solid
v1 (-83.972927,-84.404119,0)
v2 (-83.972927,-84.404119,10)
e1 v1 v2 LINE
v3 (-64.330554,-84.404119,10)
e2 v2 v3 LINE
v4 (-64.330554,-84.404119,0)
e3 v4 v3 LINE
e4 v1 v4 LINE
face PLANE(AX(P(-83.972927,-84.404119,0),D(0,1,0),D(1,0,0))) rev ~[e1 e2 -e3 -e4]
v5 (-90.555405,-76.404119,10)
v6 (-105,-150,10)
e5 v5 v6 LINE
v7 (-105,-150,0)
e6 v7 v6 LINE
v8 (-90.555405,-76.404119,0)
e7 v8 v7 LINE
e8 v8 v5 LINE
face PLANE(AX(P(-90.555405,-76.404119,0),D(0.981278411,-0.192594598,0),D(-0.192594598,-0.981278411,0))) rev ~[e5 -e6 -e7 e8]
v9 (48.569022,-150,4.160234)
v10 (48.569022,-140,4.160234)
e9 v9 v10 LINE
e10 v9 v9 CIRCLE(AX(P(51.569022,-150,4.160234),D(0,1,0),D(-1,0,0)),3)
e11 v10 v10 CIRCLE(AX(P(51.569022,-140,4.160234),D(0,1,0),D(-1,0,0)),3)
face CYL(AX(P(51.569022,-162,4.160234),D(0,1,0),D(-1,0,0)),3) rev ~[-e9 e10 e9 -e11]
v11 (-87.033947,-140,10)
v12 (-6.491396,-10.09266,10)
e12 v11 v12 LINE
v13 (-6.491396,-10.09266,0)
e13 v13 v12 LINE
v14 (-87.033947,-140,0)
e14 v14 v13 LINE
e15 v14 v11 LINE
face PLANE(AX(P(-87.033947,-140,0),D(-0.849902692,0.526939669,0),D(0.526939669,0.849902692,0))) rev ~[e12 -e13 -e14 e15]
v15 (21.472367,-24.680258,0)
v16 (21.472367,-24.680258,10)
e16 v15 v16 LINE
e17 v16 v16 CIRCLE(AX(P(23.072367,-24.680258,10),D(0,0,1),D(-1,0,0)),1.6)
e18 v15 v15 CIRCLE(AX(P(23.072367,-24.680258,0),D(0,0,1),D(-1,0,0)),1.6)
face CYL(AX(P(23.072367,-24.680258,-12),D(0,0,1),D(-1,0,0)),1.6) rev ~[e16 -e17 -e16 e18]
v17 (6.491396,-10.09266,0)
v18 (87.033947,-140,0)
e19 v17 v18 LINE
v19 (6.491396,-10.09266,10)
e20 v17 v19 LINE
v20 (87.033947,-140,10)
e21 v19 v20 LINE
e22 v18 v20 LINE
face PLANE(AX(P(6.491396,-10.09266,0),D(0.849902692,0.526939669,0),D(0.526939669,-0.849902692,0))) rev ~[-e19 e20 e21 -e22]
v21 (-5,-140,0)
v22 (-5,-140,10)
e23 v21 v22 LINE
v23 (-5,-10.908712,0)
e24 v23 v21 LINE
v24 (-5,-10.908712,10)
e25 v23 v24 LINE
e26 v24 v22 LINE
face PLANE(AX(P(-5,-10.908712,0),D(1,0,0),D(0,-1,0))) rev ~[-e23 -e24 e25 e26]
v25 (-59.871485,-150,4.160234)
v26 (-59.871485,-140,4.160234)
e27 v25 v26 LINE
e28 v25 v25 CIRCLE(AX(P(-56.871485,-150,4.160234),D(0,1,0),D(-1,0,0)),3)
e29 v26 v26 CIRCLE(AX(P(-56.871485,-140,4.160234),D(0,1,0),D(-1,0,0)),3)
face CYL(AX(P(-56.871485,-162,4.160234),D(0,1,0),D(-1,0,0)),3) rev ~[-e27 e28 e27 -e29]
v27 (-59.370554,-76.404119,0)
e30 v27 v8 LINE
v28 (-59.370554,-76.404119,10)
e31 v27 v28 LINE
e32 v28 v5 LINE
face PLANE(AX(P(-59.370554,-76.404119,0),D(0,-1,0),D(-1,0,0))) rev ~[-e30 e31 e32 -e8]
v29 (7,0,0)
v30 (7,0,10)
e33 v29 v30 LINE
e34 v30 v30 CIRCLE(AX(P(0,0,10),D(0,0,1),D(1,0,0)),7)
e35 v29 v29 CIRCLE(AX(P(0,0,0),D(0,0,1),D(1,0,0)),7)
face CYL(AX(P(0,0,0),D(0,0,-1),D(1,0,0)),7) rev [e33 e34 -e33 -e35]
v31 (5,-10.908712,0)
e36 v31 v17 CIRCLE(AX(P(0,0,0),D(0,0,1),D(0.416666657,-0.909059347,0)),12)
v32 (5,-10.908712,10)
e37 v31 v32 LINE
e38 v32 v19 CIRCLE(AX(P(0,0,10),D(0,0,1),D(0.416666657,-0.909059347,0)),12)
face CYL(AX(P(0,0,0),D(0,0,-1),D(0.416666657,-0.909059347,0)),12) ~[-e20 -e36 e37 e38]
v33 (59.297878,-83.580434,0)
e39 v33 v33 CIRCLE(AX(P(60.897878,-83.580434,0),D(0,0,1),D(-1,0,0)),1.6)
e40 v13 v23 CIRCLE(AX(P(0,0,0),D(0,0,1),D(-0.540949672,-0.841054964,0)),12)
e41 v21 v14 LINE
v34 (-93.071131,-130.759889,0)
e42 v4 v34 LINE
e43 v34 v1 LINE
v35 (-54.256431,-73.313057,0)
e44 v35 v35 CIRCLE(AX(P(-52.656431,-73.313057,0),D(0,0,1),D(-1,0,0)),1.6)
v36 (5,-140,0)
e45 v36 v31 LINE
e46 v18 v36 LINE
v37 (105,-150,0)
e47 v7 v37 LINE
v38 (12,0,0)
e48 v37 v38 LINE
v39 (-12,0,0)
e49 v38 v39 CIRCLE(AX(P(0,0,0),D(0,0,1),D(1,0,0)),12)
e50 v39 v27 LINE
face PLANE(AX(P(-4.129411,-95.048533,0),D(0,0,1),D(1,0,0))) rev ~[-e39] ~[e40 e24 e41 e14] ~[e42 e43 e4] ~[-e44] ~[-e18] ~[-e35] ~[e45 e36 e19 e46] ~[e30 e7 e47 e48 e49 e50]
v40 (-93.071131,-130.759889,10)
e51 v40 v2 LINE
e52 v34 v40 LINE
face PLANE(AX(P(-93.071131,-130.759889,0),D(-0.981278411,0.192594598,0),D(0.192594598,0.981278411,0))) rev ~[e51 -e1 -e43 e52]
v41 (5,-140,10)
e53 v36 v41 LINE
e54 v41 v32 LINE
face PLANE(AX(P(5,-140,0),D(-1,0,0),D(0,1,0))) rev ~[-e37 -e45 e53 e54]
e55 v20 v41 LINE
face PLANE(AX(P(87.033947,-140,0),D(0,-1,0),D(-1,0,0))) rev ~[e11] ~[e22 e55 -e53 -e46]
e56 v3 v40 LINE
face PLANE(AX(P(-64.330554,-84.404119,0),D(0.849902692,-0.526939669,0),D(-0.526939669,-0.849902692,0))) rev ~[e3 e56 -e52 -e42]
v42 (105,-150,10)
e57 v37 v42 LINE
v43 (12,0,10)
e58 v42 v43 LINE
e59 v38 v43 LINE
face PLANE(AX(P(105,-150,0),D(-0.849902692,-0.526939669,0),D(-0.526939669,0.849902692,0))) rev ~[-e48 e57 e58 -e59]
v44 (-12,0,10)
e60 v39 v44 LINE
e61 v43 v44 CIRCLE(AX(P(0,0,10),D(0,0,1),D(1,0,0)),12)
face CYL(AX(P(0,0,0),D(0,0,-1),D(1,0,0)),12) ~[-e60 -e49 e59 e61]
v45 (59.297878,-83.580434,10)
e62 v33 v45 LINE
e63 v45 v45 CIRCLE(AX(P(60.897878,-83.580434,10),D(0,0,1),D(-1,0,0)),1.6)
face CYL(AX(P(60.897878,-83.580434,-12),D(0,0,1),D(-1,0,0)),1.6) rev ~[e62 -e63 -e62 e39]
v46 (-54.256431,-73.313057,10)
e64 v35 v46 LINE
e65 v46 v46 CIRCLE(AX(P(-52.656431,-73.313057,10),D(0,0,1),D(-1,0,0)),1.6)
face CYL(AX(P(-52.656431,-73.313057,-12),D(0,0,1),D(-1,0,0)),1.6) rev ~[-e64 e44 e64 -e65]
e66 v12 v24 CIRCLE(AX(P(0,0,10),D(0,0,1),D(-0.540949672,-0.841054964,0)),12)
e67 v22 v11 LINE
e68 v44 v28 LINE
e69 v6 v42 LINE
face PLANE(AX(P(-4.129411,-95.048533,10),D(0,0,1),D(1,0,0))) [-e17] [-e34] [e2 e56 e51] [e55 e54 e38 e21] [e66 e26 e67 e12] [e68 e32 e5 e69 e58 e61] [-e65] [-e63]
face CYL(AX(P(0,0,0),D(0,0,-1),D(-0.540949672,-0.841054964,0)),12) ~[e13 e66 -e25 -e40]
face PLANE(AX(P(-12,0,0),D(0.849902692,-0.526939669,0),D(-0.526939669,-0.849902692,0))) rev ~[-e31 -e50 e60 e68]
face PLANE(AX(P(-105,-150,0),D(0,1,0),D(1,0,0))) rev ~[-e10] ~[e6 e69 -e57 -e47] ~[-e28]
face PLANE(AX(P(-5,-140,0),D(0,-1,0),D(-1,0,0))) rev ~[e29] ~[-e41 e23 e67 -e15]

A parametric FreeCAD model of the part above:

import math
import FreeCAD as App
import Part
import Sketcher

V = App.Vector
Q = App.Units.Quantity


def add_polygon(sketch, points):
    """Adds a closed chain of lines whose ends are joined by coincident constraints."""
    first, n = sketch.GeometryCount, len(points)
    for a, b in zip(points, points[1:] + points[:1]):
        sketch.addGeometry(Part.LineSegment(App.Vector(*a, 0), App.Vector(*b, 0)), False)
    for i in range(n):
        sketch.addConstraint(Sketcher.Constraint("Coincident", first + i, 2, first + (i + 1) % n, 1))

doc = App.newDocument("Part")
body = doc.addObject("PartDesign::Body", "Body")

# Sketch on XY plane
sketch1 = body.newObject("Sketcher::SketchObject", "Sketch")
sketch1.AttachmentSupport = (doc.getObject("XY_Plane"), [""])
sketch1.MapMode = "FlatFace"
sketch1.addGeometry(Part.ArcOfCircle(Part.Circle(V(0, 0, 0), V(0, 0, 1), 12), math.radians(0), math.radians(180)), False)  # 0
sketch1.addGeometry(Part.LineSegment(V(-12, 0, 0), V(-59.370554, -76.404119, 0)), False)  # 1
sketch1.addGeometry(Part.LineSegment(V(-59.370554, -76.404119, 0), V(-90.555405, -76.404119, 0)), False)  # 2
sketch1.addGeometry(Part.LineSegment(V(-90.555405, -76.404119, 0), V(-105, -150, 0)), False)  # 3
sketch1.addGeometry(Part.LineSegment(V(-105, -150, 0), V(105, -150, 0)), False)  # 4
sketch1.addGeometry(Part.LineSegment(V(105, -150, 0), V(12, 0, 0)), False)  # 5
add_polygon(sketch1, [(-64.330554, -84.404119), (-93.071131, -130.759889), (-83.972927, -84.404119)])  # lines 6-8
sketch1.addGeometry(Part.LineSegment(V(-5, -140, 0), V(-87.033947, -140, 0)), False)  # 9
sketch1.addGeometry(Part.LineSegment(V(-87.033947, -140, 0), V(-6.491396, -10.09266, 0)), False)  # 10
sketch1.addGeometry(Part.ArcOfCircle(Part.Circle(V(0, 0, 0), V(0, 0, 1), 12), math.radians(-122.748311), math.radians(-114.624318)), False)  # 11
sketch1.addGeometry(Part.LineSegment(V(-5, -10.908712, 0), V(-5, -140, 0)), False)  # 12
sketch1.addGeometry(Part.LineSegment(V(5, -140, 0), V(5, -10.908712, 0)), False)  # 13
sketch1.addGeometry(Part.ArcOfCircle(Part.Circle(V(0, 0, 0), V(0, 0, 1), 12), math.radians(-65.375682), math.radians(-57.251689)), False)  # 14
sketch1.addGeometry(Part.LineSegment(V(6.491396, -10.09266, 0), V(87.033947, -140, 0)), False)  # 15
sketch1.addGeometry(Part.LineSegment(V(87.033947, -140, 0), V(5, -140, 0)), False)  # 16
sketch1.addGeometry(Part.Circle(V(0, 0, 0), V(0, 0, 1), 7), False)  # 17
sketch1.addConstraint(Sketcher.Constraint("Coincident", 0, 2, 1, 1))
sketch1.addConstraint(Sketcher.Constraint("Coincident", 1, 2, 2, 1))
sketch1.addConstraint(Sketcher.Constraint("Coincident", 2, 2, 3, 1))
sketch1.addConstraint(Sketcher.Constraint("Coincident", 3, 2, 4, 1))
sketch1.addConstraint(Sketcher.Constraint("Coincident", 4, 2, 5, 1))
sketch1.addConstraint(Sketcher.Constraint("Coincident", 5, 2, 0, 1))
sketch1.addConstraint(Sketcher.Constraint("Coincident", 9, 2, 10, 1))
sketch1.addConstraint(Sketcher.Constraint("Coincident", 10, 2, 11, 1))
sketch1.addConstraint(Sketcher.Constraint("Coincident", 11, 2, 12, 1))
sketch1.addConstraint(Sketcher.Constraint("Coincident", 12, 2, 9, 1))
sketch1.addConstraint(Sketcher.Constraint("Coincident", 13, 2, 14, 1))
sketch1.addConstraint(Sketcher.Constraint("Coincident", 14, 2, 15, 1))
sketch1.addConstraint(Sketcher.Constraint("Coincident", 15, 2, 16, 1))
sketch1.addConstraint(Sketcher.Constraint("Coincident", 16, 2, 13, 1))
sketch1.addConstraint(Sketcher.Constraint("Horizontal", 2))
sketch1.addConstraint(Sketcher.Constraint("Horizontal", 4))
sketch1.addConstraint(Sketcher.Constraint("Horizontal", 8))
sketch1.addConstraint(Sketcher.Constraint("Horizontal", 9))
sketch1.addConstraint(Sketcher.Constraint("Vertical", 12))
sketch1.addConstraint(Sketcher.Constraint("Vertical", 13))
sketch1.addConstraint(Sketcher.Constraint("Horizontal", 16))
sketch1.addConstraint(Sketcher.Constraint("Coincident", 0, 3, -1, 1))
sketch1.addConstraint(Sketcher.Constraint("Coincident", 11, 3, -1, 1))
sketch1.addConstraint(Sketcher.Constraint("Coincident", 14, 3, -1, 1))
sketch1.addConstraint(Sketcher.Constraint("Coincident", 17, 3, -1, 1))
sketch1.addConstraint(Sketcher.Constraint("Equal", 0, 11))
sketch1.addConstraint(Sketcher.Constraint("Equal", 11, 14))
sketch1.addConstraint(Sketcher.Constraint("Symmetric", 9, 2, 15, 2, -2))
sketch1.addConstraint(Sketcher.Constraint("PointOnObject", 0, 2, -1))
sketch1.addConstraint(Sketcher.Constraint("PointOnObject", 5, 2, -1))
sketch1.addConstraint(Sketcher.Constraint("Parallel", 1, 6))
sketch1.addConstraint(Sketcher.Constraint("Parallel", 3, 7))
sketch1.addConstraint(Sketcher.Constraint("Parallel", 6, 10))
sketch1.addConstraint(Sketcher.Constraint("Parallel", 5, 15))
sketch1.addConstraint(Sketcher.Constraint("Horizontal", 11, 2, 13, 2))
sketch1.addConstraint(Sketcher.Constraint("Horizontal", 10, 2, 14, 2))
sketch1.addConstraint(Sketcher.Constraint("Diameter", 17, Q("14 mm")))
sketch1.addConstraint(Sketcher.Constraint("Radius", 0, Q("12 mm")))
sketch1.addConstraint(Sketcher.Constraint("DistanceX", 4, 1, 4, 2, Q("210 mm")))
sketch1.addConstraint(Sketcher.Constraint("Distance", 3, Q("75 mm")))
sketch1.addConstraint(Sketcher.Constraint("DistanceX", 3, 2, -1, 1, Q("105 mm")))
sketch1.addConstraint(Sketcher.Constraint("DistanceY", 3, 2, -1, 1, Q("150 mm")))
sketch1.addConstraint(Sketcher.Constraint("DistanceY", 9, 2, -1, 1, Q("140 mm")))
sketch1.addConstraint(Sketcher.Constraint("DistanceX", 11, 2, -1, 1, Q("5 mm")))
sketch1.addConstraint(Sketcher.Constraint("DistanceY", 7, 2, 2, 2, Q("8 mm")))
sketch1.addConstraint(Sketcher.Constraint("DistanceX", 8, 2, 1, 2, Q("4.96 mm")))
sketch1.addConstraint(Sketcher.Constraint("DistanceX", 2, 2, 2, 1, Q("31.184851 mm")))
sketch1.addConstraint(Sketcher.Constraint("Distance", 7, Q("47.240181 mm")))
sketch1.addConstraint(Sketcher.Constraint("DistanceX", 9, 2, 9, 1, Q("82.033947 mm")))
pad1 = body.newObject("PartDesign::Pad", "Pad")
pad1.Profile = sketch1
pad1.Length = 10

# Sketch on XZ plane
sketch2 = body.newObject("Sketcher::SketchObject", "Sketch001")
sketch2.AttachmentSupport = (doc.getObject("XZ_Plane"), [""])
sketch2.MapMode = "FlatFace"
sketch2.AttachmentOffset = App.Placement(V(0, 0, 150), App.Rotation())
sketch2.addGeometry(Part.Circle(V(-56.871485, 4.160234, 0), V(0, 0, 1), 3), False)
sketch2.addGeometry(Part.Circle(V(51.569022, 4.160234, 0), V(0, 0, 1), 3), False)
sketch2.addConstraint(Sketcher.Constraint("Equal", 0, 1))
sketch2.addConstraint(Sketcher.Constraint("Horizontal", 0, 3, 1, 3))
sketch2.addConstraint(Sketcher.Constraint("Diameter", 0, Q("6 mm")))
sketch2.addConstraint(Sketcher.Constraint("DistanceX", 0, 3, -1, 1, Q("56.871485 mm")))
sketch2.addConstraint(Sketcher.Constraint("DistanceY", -1, 1, 0, 3, Q("4.160234 mm")))
sketch2.addConstraint(Sketcher.Constraint("DistanceX", -1, 1, 1, 3, Q("51.569022 mm")))
doc.recompute()
hole = body.newObject("PartDesign::Hole", "Hole")
hole.Profile = sketch2
hole.ThreadType = "None"
hole.Diameter = 6
hole.DepthType = "Dimension"
hole.Depth = 12
hole.DrillPoint = "Angled"
hole.DrillPointAngle = 118

# Sketch on XY plane
sketch3 = body.newObject("Sketcher::SketchObject", "Sketch002")
sketch3.AttachmentSupport = (doc.getObject("XY_Plane"), [""])
sketch3.MapMode = "FlatFace"
sketch3.addGeometry(Part.Circle(V(-52.656431, -73.313057, 0), V(0, 0, 1), 1.6), False)
sketch3.addGeometry(Part.Circle(V(23.072367, -24.680258, 0), V(0, 0, 1), 1.6), False)
sketch3.addGeometry(Part.Circle(V(60.897878, -83.580434, 0), V(0, 0, 1), 1.6), False)
sketch3.addConstraint(Sketcher.Constraint("Equal", 0, 1))
sketch3.addConstraint(Sketcher.Constraint("Equal", 1, 2))
sketch3.addConstraint(Sketcher.Constraint("Diameter", 0, Q("3.2 mm")))
sketch3.addConstraint(Sketcher.Constraint("DistanceY", 0, 3, 1, 3, Q("48.6328 mm")))
sketch3.addConstraint(Sketcher.Constraint("DistanceX", 0, 3, -1, 1, Q("52.656431 mm")))
sketch3.addConstraint(Sketcher.Constraint("DistanceX", 1, 3, 2, 3, Q("37.825511 mm")))
sketch3.addConstraint(Sketcher.Constraint("DistanceX", 0, 3, 2, 3, Q("113.554309 mm")))
sketch3.addConstraint(Sketcher.Constraint("DistanceY", 0, 3, -1, 1, Q("73.313057 mm")))
sketch3.addConstraint(Sketcher.Constraint("DistanceY", 2, 3, -1, 1, Q("83.580434 mm")))
doc.recompute()
hole2 = body.newObject("PartDesign::Hole", "Hole001")
hole2.Profile = sketch3
hole2.ThreadType = "None"
hole2.Diameter = 3.2
hole2.DepthType = "Dimension"
hole2.Depth = 12
hole2.DrillPoint = "Angled"
hole2.DrillPointAngle = 118
hole2.Reversed = True

doc.recompute()
